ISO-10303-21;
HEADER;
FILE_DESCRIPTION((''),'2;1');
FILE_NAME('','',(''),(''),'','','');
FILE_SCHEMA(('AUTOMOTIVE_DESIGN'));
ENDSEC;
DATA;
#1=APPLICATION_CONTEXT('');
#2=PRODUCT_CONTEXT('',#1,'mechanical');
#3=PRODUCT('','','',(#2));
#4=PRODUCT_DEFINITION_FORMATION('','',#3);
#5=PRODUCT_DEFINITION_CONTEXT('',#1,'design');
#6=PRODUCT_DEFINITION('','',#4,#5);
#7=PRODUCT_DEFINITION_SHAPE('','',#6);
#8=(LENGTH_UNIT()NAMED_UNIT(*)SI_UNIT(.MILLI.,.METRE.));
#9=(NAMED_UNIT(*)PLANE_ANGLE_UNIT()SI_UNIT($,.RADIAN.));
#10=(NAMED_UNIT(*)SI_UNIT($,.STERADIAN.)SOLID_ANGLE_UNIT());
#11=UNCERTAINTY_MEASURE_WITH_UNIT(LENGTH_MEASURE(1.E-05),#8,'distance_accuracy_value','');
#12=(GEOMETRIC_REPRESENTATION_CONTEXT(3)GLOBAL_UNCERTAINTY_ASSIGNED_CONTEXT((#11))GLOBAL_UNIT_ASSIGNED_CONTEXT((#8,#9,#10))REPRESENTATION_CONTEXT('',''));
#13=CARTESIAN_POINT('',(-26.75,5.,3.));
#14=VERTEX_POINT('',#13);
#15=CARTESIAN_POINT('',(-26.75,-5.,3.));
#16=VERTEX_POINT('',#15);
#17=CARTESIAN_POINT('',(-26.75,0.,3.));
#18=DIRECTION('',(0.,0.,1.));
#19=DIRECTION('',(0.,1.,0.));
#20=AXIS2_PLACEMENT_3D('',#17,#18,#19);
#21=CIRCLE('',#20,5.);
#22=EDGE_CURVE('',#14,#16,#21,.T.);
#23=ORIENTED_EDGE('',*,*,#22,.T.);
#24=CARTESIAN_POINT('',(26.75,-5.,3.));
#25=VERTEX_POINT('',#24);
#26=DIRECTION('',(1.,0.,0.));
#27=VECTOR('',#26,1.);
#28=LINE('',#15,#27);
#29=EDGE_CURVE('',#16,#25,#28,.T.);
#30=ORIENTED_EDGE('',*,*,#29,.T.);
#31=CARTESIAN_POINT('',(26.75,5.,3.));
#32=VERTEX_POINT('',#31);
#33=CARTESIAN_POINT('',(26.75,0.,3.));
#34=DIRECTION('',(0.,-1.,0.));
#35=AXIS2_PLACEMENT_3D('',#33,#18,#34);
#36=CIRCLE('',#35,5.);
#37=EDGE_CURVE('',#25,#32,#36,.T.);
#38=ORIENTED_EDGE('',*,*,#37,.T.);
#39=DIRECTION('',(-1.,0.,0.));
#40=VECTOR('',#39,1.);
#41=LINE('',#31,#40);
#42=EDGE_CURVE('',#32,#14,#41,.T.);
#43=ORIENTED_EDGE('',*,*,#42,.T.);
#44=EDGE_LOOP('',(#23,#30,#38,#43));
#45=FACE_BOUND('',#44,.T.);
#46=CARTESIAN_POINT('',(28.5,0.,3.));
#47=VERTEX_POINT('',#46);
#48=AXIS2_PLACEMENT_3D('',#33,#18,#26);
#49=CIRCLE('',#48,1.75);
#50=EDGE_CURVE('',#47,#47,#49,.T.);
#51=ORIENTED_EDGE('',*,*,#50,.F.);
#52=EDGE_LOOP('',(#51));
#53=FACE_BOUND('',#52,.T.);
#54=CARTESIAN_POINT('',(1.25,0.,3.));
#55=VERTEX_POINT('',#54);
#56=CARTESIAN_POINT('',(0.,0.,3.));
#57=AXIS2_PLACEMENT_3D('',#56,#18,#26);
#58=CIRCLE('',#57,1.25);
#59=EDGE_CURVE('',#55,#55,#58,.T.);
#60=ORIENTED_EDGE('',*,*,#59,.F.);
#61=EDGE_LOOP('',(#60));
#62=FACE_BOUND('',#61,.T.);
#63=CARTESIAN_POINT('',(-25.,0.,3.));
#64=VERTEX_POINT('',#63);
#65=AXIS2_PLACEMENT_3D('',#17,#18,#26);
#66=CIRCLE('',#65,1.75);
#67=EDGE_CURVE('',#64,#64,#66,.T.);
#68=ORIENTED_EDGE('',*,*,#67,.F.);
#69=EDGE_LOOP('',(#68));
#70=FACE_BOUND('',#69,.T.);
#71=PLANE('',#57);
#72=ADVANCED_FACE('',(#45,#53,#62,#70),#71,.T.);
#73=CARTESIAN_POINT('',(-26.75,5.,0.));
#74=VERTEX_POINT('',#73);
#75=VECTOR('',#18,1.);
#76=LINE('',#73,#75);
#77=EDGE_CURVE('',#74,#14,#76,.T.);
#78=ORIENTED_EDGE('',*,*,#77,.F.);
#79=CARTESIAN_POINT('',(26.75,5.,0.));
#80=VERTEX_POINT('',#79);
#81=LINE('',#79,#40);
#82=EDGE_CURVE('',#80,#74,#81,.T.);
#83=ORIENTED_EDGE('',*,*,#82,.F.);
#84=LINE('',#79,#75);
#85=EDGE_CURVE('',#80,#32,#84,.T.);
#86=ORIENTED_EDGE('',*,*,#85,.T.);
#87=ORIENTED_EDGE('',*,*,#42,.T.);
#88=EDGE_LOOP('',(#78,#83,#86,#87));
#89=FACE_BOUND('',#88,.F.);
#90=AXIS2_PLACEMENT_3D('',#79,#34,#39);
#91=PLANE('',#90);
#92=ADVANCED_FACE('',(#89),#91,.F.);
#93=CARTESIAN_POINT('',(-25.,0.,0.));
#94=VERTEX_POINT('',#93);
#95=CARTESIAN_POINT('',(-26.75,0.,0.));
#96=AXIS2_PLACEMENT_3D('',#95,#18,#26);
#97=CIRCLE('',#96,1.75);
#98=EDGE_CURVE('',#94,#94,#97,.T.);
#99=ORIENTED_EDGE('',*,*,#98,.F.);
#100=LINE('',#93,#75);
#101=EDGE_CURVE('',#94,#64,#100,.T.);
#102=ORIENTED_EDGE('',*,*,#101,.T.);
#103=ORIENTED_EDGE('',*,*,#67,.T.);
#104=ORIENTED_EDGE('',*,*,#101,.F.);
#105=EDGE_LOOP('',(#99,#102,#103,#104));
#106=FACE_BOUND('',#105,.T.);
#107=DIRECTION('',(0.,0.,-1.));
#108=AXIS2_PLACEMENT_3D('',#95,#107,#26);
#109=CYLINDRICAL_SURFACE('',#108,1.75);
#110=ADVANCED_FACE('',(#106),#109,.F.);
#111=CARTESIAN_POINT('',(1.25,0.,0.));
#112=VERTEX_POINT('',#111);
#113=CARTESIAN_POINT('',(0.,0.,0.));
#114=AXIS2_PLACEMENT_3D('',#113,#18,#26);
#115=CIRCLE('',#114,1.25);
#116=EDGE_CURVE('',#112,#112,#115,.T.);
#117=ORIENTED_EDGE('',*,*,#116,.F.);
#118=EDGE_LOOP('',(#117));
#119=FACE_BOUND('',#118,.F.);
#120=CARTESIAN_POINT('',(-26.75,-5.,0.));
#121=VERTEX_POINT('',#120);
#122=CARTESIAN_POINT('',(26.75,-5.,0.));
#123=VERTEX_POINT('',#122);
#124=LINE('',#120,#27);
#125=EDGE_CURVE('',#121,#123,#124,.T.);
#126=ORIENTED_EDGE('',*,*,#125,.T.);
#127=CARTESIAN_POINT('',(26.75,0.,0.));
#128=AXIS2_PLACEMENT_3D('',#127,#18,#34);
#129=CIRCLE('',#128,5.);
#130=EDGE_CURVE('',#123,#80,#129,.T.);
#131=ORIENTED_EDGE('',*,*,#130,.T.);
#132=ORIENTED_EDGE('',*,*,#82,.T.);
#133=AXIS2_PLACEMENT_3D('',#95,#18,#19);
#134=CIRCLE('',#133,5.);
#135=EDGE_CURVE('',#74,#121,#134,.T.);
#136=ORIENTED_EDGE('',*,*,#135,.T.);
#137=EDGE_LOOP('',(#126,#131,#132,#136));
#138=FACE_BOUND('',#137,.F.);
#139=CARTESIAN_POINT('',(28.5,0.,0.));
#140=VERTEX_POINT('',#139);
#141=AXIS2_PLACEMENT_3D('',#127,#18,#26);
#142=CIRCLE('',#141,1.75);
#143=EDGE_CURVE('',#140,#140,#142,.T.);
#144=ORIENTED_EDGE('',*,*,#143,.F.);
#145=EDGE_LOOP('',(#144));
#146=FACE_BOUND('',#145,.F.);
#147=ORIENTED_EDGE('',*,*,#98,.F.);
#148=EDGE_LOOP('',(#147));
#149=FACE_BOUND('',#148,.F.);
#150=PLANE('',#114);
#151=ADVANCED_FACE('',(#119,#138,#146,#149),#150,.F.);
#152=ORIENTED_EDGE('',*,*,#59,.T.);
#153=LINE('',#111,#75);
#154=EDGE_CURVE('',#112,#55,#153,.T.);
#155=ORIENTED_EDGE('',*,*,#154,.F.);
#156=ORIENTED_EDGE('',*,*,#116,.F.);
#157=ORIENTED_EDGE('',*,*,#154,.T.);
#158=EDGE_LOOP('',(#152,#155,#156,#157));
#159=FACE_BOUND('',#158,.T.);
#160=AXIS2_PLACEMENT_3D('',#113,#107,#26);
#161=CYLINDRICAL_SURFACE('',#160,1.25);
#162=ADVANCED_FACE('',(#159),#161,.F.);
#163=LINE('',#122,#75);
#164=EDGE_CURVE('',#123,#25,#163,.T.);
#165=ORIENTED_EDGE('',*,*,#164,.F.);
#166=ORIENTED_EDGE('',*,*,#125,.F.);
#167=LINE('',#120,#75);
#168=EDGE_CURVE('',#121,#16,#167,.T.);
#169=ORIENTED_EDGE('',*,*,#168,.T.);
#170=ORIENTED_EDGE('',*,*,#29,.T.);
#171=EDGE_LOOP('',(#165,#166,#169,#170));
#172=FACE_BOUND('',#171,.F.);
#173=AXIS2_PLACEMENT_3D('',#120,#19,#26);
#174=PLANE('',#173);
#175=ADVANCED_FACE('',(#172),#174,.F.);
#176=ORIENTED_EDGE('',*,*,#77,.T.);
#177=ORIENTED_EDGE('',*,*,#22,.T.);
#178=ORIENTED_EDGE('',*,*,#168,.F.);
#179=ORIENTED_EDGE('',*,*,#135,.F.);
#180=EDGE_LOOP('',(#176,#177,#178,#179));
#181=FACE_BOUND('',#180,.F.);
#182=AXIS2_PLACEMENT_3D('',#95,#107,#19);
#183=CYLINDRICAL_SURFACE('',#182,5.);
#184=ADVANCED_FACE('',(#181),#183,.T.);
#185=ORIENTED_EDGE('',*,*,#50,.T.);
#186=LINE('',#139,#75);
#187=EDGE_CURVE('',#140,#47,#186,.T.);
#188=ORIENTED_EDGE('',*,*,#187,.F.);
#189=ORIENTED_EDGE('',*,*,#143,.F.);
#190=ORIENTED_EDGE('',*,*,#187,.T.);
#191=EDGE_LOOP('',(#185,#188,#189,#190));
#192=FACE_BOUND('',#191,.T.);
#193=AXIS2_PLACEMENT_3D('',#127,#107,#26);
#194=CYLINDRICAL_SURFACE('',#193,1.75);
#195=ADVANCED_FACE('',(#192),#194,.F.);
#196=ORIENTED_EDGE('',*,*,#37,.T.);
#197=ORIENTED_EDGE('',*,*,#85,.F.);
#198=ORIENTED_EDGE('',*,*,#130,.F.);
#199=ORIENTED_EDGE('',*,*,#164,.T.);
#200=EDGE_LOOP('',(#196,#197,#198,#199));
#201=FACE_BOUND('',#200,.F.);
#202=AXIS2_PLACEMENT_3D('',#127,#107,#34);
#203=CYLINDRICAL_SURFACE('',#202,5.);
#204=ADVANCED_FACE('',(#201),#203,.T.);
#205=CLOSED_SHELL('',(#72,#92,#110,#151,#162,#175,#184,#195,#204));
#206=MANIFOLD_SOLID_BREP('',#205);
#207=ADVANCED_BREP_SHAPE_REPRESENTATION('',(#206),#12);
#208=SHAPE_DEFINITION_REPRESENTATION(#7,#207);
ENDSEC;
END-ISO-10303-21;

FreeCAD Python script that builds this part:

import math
import FreeCAD as App
import Part
import Sketcher
Q = App.Units.Quantity

doc = App.newDocument("Part")
body = doc.addObject("PartDesign::Body", "Body")

# Sketch on XY plane
sketch1 = doc.addObject("Sketcher::SketchObject", "Sketch")
body.addObject(sketch1)
sketch1.AttachmentSupport = (doc.XY_Plane, [""])
sketch1.MapMode = "FlatFace"
sketch1.addGeometry(Part.LineSegment(App.Vector(26.8, 5, 0), App.Vector(-26.8, 5, 0)), False)
sketch1.addGeometry(Part.ArcOfCircle(Part.Circle(App.Vector(-26.8, 0, 0), App.Vector(0, 0, 1), 5), math.radians(90), math.radians(270)), False)
sketch1.addGeometry(Part.LineSegment(App.Vector(-26.8, -5, 0), App.Vector(26.8, -5, 0)), False)
sketch1.addGeometry(Part.ArcOfCircle(Part.Circle(App.Vector(26.8, 0, 0), App.Vector(0, 0, 1), 5), math.radians(-90), math.radians(90)), False)
sketch1.addGeometry(Part.Circle(App.Vector(-26.8, 0, 0), App.Vector(0, 0, 1), 1.8), False)
sketch1.addGeometry(Part.Circle(App.Vector(0, 0, 0), App.Vector(0, 0, 1), 1.2), False)
sketch1.addGeometry(Part.Circle(App.Vector(26.8, 0, 0), App.Vector(0, 0, 1), 1.8), False)
sketch1.addConstraint(Sketcher.Constraint("Tangent", 0, 2, 1, 1))
sketch1.addConstraint(Sketcher.Constraint("Tangent", 1, 2, 2, 1))
sketch1.addConstraint(Sketcher.Constraint("Tangent", 2, 2, 3, 1))
sketch1.addConstraint(Sketcher.Constraint("Tangent", 3, 2, 0, 1))
sketch1.addConstraint(Sketcher.Constraint("Horizontal", 0))
sketch1.addConstraint(Sketcher.Constraint("Horizontal", 2))
sketch1.addConstraint(Sketcher.Constraint("Coincident", 5, 3, -1, 1))
sketch1.addConstraint(Sketcher.Constraint("Coincident", 4, 3, 1, 3))
sketch1.addConstraint(Sketcher.Constraint("Coincident", 6, 3, 3, 3))
sketch1.addConstraint(Sketcher.Constraint("Equal", 4, 6))
sketch1.addConstraint(Sketcher.Constraint("Symmetric", 1, 3, 3, 3, -1, 1))
sketch1.addConstraint(Sketcher.Constraint("Radius", 1, Q("5 mm")))
sketch1.addConstraint(Sketcher.Constraint("Diameter", 4, Q("3.5 mm")))
sketch1.addConstraint(Sketcher.Constraint("Diameter", 5, Q("2.5 mm")))
sketch1.addConstraint(Sketcher.Constraint("DistanceX", 0, 2, 0, 1, Q("53.5 mm")))
pad1 = doc.addObject("PartDesign::Pad", "Pad")
body.addObject(pad1)
pad1.Profile = sketch1
pad1.Length = 3

doc.recompute()
